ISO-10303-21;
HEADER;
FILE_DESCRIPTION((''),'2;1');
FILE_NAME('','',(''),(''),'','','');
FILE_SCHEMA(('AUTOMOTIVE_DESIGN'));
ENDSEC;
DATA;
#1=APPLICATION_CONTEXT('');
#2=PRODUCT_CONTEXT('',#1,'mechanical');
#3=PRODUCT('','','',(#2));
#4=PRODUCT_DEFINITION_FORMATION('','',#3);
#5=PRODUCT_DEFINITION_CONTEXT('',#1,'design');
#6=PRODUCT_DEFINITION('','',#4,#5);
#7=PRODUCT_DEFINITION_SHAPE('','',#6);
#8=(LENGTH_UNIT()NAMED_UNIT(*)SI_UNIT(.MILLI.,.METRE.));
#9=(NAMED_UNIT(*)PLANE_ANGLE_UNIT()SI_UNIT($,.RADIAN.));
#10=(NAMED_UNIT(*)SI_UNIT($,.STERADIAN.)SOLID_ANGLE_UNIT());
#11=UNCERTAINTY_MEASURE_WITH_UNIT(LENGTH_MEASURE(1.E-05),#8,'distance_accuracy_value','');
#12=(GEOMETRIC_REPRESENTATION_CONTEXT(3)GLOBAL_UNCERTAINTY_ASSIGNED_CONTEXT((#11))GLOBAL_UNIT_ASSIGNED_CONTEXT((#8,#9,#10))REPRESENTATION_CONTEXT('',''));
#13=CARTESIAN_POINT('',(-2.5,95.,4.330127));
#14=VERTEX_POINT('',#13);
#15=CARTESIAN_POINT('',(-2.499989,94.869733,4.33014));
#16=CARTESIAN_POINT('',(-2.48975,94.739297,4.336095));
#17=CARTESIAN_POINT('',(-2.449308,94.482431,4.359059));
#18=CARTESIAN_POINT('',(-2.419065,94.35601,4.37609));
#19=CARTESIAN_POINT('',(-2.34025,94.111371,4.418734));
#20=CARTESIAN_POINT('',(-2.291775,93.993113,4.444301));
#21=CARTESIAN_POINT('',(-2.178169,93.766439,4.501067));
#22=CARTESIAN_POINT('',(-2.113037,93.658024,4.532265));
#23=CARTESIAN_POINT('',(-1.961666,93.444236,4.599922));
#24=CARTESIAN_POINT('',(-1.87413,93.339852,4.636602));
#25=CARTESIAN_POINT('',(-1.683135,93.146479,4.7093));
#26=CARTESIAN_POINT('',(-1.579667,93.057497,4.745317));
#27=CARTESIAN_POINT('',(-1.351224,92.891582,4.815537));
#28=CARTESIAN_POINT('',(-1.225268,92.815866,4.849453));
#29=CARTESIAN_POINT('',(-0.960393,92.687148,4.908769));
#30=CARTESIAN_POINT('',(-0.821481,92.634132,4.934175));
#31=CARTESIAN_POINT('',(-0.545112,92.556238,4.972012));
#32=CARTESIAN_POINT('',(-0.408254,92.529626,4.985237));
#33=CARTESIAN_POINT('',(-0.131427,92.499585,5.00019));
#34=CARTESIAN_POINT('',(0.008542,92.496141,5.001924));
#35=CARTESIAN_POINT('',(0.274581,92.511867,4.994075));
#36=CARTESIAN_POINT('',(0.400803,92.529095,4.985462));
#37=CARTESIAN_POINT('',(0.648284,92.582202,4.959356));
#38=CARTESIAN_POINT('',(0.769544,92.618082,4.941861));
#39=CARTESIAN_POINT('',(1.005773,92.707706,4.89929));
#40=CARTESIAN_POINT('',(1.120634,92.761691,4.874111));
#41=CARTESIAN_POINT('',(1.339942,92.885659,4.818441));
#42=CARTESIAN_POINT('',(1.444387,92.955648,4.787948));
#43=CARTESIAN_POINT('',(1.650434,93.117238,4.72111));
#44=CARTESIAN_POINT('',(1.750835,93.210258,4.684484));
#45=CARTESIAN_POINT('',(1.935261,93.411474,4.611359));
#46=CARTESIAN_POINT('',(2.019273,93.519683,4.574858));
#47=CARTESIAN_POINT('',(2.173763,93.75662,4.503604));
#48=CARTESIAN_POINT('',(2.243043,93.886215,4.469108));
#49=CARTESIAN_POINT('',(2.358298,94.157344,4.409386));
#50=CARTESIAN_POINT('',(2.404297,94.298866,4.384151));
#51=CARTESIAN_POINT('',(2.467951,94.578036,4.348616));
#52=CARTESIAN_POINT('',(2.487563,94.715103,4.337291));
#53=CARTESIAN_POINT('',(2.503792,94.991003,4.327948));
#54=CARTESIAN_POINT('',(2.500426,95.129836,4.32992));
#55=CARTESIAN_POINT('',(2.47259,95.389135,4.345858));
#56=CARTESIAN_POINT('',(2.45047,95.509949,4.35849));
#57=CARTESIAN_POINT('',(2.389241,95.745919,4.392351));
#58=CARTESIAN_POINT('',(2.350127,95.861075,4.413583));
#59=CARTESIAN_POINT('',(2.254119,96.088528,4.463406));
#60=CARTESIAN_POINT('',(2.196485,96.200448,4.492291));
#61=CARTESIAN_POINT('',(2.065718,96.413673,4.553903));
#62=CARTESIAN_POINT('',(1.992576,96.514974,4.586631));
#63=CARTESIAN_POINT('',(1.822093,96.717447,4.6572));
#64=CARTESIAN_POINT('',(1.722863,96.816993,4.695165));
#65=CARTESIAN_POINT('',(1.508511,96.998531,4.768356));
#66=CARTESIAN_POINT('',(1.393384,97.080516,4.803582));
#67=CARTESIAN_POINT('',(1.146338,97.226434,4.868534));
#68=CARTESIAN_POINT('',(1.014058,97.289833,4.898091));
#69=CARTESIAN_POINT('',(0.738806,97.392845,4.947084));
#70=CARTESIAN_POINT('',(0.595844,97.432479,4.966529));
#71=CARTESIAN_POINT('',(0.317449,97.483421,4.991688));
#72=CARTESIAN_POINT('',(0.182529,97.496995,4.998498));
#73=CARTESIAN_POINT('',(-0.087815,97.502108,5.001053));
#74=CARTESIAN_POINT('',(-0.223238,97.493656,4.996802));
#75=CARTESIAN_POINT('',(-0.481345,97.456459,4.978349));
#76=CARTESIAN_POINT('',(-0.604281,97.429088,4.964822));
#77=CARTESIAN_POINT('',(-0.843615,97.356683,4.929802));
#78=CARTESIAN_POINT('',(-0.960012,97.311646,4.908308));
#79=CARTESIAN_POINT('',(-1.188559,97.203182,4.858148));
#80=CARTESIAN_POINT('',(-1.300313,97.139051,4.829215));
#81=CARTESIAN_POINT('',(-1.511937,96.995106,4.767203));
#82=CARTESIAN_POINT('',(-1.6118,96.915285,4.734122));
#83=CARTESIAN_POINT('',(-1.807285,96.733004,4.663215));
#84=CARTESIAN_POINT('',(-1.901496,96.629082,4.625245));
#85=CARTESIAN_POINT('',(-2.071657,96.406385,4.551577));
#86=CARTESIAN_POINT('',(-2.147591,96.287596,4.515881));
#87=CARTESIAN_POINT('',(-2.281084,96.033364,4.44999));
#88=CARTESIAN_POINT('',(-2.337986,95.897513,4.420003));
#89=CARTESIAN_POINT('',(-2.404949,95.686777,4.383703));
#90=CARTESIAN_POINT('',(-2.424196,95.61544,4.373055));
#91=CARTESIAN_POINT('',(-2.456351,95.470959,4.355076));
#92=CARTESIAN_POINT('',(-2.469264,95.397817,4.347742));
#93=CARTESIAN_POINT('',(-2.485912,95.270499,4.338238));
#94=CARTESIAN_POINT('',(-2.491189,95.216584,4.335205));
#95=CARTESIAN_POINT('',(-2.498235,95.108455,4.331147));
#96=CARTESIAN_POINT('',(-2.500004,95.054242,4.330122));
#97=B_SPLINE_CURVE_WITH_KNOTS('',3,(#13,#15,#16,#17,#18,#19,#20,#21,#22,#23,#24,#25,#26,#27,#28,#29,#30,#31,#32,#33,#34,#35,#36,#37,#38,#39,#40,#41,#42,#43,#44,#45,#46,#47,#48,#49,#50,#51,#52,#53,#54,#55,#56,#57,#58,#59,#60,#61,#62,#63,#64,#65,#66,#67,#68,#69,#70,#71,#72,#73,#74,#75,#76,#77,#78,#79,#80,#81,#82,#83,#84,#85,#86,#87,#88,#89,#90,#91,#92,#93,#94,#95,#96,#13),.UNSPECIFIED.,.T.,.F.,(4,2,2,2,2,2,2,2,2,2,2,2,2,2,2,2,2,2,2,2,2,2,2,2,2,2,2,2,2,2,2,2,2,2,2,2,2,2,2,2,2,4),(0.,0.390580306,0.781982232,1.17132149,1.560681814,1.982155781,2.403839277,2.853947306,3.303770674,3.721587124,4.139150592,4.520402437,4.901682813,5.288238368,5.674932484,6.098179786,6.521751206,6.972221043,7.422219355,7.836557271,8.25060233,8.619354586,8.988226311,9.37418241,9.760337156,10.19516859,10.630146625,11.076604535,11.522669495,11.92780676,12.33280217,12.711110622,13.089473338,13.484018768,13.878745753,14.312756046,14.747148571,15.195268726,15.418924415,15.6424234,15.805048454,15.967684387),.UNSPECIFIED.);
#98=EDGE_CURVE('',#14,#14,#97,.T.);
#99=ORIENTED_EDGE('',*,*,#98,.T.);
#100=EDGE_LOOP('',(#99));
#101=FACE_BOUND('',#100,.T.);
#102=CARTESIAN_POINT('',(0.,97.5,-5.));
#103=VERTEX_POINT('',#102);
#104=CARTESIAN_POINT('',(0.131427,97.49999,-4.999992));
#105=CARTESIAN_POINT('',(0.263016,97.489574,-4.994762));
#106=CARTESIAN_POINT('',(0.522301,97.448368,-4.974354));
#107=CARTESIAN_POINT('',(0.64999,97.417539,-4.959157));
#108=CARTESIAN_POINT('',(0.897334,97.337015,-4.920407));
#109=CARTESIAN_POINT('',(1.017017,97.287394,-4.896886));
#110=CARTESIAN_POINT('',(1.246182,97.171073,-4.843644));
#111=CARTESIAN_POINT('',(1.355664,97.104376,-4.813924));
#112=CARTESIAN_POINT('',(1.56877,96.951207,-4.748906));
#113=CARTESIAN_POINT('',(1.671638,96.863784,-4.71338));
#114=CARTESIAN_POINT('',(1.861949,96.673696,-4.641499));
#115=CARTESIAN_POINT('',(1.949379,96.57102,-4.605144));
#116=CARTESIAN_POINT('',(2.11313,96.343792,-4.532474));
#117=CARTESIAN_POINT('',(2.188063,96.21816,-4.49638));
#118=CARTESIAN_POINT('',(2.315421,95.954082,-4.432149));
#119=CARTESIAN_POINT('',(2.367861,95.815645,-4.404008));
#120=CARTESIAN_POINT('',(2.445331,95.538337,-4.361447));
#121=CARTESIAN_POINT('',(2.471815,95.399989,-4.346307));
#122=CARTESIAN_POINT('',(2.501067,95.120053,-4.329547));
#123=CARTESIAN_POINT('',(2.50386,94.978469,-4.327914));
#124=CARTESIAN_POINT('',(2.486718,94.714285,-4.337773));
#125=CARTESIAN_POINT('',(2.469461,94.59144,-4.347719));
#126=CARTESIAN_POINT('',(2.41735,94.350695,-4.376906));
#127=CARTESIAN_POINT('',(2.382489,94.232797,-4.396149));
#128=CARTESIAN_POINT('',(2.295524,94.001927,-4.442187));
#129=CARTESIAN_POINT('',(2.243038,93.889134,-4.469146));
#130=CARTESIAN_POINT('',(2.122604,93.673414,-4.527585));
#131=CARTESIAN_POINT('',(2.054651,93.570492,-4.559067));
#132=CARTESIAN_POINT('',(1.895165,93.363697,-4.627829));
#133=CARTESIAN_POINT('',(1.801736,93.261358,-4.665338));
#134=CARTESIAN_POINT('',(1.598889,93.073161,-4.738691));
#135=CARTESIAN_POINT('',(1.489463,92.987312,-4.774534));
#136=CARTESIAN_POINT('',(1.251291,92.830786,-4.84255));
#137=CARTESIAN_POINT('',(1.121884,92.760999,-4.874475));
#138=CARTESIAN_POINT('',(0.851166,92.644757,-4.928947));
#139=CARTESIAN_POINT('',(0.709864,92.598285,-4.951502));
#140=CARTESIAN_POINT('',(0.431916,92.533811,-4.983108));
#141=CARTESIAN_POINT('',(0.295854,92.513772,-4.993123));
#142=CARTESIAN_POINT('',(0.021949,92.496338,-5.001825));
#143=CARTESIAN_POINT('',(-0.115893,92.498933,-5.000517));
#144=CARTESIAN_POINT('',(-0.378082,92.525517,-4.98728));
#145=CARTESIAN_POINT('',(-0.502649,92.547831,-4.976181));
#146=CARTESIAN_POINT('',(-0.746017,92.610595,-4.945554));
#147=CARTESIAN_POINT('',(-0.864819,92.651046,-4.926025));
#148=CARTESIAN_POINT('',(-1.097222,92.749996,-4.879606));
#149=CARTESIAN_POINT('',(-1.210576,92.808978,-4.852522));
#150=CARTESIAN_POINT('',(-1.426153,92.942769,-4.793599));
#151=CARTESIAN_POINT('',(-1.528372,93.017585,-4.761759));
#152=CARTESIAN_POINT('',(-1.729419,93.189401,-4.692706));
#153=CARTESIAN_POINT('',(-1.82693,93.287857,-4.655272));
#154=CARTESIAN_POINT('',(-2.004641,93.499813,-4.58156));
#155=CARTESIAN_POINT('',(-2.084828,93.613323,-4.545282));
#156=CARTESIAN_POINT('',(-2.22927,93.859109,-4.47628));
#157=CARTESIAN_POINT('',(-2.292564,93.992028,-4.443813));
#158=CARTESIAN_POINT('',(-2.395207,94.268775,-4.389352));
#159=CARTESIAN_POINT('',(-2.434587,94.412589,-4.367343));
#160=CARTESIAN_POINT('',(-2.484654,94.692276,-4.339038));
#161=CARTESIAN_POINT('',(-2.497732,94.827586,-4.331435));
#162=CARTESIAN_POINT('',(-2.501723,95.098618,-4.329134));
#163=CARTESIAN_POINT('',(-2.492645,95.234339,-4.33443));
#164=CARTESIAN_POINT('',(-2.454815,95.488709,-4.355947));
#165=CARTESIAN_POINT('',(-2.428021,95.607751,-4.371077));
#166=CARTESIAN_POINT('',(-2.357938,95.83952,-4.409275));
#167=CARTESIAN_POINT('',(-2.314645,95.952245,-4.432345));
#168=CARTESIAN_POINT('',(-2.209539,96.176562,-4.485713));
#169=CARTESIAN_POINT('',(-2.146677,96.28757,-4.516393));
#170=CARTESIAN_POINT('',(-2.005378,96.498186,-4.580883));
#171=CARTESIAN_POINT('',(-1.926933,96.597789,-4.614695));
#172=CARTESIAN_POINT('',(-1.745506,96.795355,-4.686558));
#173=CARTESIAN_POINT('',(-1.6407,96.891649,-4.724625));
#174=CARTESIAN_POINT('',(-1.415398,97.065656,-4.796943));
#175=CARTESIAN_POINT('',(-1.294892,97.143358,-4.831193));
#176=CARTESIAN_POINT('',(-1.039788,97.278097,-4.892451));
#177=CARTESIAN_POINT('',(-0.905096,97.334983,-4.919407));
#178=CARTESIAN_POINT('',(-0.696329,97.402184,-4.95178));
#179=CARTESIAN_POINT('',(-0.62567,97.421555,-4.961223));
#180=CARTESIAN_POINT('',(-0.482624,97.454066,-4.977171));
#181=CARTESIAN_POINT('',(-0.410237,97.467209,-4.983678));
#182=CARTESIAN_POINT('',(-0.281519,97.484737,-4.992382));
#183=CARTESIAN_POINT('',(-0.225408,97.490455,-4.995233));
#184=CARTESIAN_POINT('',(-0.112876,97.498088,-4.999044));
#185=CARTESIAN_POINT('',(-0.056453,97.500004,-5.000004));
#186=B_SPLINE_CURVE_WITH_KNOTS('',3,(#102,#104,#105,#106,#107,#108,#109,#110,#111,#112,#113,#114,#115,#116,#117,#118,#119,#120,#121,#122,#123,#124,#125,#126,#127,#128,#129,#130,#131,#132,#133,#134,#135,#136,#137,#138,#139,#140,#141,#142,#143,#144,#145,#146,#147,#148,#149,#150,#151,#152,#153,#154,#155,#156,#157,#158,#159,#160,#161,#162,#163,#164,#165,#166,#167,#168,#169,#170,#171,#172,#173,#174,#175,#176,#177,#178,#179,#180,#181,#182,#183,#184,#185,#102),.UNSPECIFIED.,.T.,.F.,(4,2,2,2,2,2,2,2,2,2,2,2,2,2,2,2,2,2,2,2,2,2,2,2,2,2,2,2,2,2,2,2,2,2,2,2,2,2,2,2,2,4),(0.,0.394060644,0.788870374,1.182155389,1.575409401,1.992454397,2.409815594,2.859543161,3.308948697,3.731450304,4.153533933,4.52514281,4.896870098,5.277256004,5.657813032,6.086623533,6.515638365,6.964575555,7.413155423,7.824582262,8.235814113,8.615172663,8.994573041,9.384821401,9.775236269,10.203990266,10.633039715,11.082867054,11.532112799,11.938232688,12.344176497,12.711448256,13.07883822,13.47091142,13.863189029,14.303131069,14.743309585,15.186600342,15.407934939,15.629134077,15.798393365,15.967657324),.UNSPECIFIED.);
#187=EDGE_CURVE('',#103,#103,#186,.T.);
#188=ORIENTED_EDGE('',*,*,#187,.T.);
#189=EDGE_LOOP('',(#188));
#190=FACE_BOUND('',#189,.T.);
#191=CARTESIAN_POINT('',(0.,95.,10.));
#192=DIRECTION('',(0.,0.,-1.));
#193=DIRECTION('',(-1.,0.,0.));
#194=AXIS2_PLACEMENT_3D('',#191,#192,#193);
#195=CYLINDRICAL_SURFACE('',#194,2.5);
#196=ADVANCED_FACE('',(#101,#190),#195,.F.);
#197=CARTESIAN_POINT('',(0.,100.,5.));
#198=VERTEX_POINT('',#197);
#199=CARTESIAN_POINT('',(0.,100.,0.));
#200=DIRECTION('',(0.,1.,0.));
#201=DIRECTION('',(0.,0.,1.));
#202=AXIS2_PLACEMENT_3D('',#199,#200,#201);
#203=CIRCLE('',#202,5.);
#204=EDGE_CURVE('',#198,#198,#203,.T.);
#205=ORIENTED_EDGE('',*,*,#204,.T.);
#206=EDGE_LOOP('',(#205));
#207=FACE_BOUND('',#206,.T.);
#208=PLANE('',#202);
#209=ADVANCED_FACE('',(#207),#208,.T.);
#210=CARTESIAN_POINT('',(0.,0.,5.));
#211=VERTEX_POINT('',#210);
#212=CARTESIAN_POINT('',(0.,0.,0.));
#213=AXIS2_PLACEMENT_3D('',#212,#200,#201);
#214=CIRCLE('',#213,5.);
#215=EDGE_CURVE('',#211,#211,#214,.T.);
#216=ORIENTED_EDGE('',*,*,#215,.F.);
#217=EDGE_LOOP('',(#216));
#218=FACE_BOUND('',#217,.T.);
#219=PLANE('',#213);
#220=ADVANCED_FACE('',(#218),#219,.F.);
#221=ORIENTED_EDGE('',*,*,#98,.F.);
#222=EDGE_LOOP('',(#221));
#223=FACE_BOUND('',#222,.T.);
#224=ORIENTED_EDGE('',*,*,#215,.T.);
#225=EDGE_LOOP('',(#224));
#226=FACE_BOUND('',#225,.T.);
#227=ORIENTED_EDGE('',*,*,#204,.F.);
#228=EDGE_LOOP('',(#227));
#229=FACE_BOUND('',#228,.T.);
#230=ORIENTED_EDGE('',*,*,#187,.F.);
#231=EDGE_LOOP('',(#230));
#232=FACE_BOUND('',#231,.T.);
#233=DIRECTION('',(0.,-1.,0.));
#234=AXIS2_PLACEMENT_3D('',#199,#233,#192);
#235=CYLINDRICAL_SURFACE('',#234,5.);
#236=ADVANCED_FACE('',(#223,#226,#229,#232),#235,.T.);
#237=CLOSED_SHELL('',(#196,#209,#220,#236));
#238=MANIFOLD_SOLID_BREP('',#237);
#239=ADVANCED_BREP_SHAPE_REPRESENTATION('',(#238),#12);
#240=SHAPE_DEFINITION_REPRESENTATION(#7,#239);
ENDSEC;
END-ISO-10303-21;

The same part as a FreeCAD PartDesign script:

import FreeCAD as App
import Part
import Sketcher

doc = App.newDocument("Part")
body = doc.addObject("PartDesign::Body", "Body")

sketch1 = body.newObject("Sketcher::SketchObject", "Sketch")
sketch1.AttachmentSupport = (doc.getObject("XZ_Plane"), [""])
sketch1.MapMode = "FlatFace"
sketch1.addGeometry(Part.Circle(App.Vector(0, 0, 0), App.Vector(0, 0, 1), 5), False)
sketch1.addConstraint([
    Sketcher.Constraint("Coincident", 0, 3, -1, 1),
    Sketcher.Constraint("Diameter", 0, 10.0),
])
pad1 = body.newObject("PartDesign::Pad", "Pad")
pad1.Profile = sketch1
pad1.Length = 100
pad1.Reversed = True

sketch2 = body.newObject("Sketcher::SketchObject", "Sketch001")
sketch2.AttachmentSupport = (doc.getObject("XY_Plane"), [""])
sketch2.MapMode = "FlatFace"
sketch2.addGeometry(Part.Circle(App.Vector(0, 95, 0), App.Vector(0, 0, 1), 2.5), False)
sketch2.addConstraint([
    Sketcher.Constraint("PointOnObject", 0, 3, -2),
    Sketcher.Constraint("Diameter", 0, 5.0),
    Sketcher.Constraint("DistanceY", -1, 1, 0, 3, 95.0),
])
pocket1 = body.newObject("PartDesign::Pocket", "Pocket")
pocket1.Profile = sketch2
pocket1.Type = "ThroughAll"
pocket1.Midplane = True

doc.recompute()
